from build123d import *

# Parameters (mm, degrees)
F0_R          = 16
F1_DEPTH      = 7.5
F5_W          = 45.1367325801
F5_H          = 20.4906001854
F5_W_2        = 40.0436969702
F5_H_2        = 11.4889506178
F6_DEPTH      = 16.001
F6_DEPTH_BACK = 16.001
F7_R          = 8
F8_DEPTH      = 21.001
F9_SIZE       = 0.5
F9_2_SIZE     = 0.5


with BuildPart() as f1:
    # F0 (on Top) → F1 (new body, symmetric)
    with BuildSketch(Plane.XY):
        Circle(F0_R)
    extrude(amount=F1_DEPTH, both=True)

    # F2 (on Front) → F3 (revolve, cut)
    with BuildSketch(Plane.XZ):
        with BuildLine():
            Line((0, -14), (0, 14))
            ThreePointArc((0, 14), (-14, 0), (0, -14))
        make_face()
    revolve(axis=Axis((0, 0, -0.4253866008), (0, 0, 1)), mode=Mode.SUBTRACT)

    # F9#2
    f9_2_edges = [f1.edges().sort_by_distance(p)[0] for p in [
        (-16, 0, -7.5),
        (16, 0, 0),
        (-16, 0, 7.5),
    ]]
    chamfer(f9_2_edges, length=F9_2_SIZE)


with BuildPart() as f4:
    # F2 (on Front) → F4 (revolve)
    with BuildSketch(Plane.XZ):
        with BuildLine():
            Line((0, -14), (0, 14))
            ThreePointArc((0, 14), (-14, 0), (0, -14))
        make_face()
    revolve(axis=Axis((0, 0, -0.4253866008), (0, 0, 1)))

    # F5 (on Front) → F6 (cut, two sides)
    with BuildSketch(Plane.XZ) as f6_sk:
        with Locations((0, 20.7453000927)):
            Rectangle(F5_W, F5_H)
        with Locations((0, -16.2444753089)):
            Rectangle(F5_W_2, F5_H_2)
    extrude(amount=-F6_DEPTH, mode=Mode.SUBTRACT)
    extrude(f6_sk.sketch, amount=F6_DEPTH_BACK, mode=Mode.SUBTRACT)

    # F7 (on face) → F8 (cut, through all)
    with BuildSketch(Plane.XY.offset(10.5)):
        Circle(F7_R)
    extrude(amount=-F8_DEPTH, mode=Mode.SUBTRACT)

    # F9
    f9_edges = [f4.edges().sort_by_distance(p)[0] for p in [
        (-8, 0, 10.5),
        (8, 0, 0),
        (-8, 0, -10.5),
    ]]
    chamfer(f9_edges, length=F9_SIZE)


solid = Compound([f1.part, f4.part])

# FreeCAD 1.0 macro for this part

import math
import FreeCAD as App
import Part
import Sketcher
Q = App.Units.Quantity


def edges_at(feature, points):
    """Names of the edges that pass closest to the given points."""
    edges = feature.Shape.Edges
    near = lambda p: min(range(len(edges)), key=lambda i: edges[i].distToShape(Part.Vertex(*p))[0])
    return sorted({f"Edge{near(p) + 1}" for p in points})


def add_polygon(sketch, points):
    """Adds a closed chain of lines whose ends are joined by coincident constraints."""
    first, n = sketch.GeometryCount, len(points)
    for a, b in zip(points, points[1:] + points[:1]):
        sketch.addGeometry(Part.LineSegment(App.Vector(*a, 0), App.Vector(*b, 0)), False)
    for i in range(n):
        sketch.addConstraint(Sketcher.Constraint("Coincident", first + i, 2, first + (i + 1) % n, 1))

doc = App.newDocument("Part")
body = doc.addObject("PartDesign::Body", "Body")

# Sketch on XY plane
sketch1 = doc.addObject("Sketcher::SketchObject", "Sketch")
body.addObject(sketch1)
sketch1.AttachmentSupport = (doc.XY_Plane, [""])
sketch1.MapMode = "FlatFace"
sketch1.addGeometry(Part.Circle(App.Vector(0, 0, 0), App.Vector(0, 0, 1), 16), False)
sketch1.addConstraint([
    Sketcher.Constraint("Coincident", 0, 3, -1, 1),
    Sketcher.Constraint("Diameter", 0, Q("32 mm")),
])
pad1 = doc.addObject("PartDesign::Pad", "Pad")
body.addObject(pad1)
pad1.Profile = sketch1
pad1.Length = 15
pad1.Midplane = True

# Sketch on XZ plane
sketch2 = doc.addObject("Sketcher::SketchObject", "Sketch001")
body.addObject(sketch2)
sketch2.AttachmentSupport = (doc.XZ_Plane, [""])
sketch2.MapMode = "FlatFace"
sketch2.addGeometry([
    Part.LineSegment(App.Vector(0, -14, 0), App.Vector(0, 14, 0)),
    Part.ArcOfCircle(Part.Circle(App.Vector(0, 0, 0), App.Vector(0, 0, 1), 14), math.radians(90), math.radians(270)),
], False)
sketch2.addConstraint([
    Sketcher.Constraint("Coincident", 0, 1, 1, 2),
    Sketcher.Constraint("Coincident", 1, 1, 0, 2),
    Sketcher.Constraint("Vertical", 0),
    Sketcher.Constraint("Coincident", 1, 3, -1, 1),
    Sketcher.Constraint("PointOnObject", 0, 1, -2),
    Sketcher.Constraint("Radius", 1, Q("14 mm")),
])
groove = doc.addObject("PartDesign::Groove", "Groove")
body.addObject(groove)
groove.Profile = sketch2
groove.ReferenceAxis = (sketch2, ["V_Axis"])
groove.Angle = 360
doc.recompute()

chamfer = doc.addObject("PartDesign::Chamfer", "Chamfer")
body.addObject(chamfer)
chamfer.Base = (groove, edges_at(groove, [(-16, 0, -7.5), (16, 0, 0), (-16, 0, 7.5)]))
chamfer.Size = 0.5
body2 = doc.addObject("PartDesign::Body", "Body001")

# Sketch on XZ plane
sketch3 = doc.addObject("Sketcher::SketchObject", "Sketch002")
body2.addObject(sketch3)
sketch3.AttachmentSupport = (doc.getObject("XZ_Plane001"), [""])
sketch3.MapMode = "FlatFace"
sketch3.addGeometry([
    Part.LineSegment(App.Vector(0, -14, 0), App.Vector(0, 14, 0)),
    Part.ArcOfCircle(Part.Circle(App.Vector(0, 0, 0), App.Vector(0, 0, 1), 14), math.radians(90), math.radians(270)),
], False)
sketch3.addConstraint([
    Sketcher.Constraint("Coincident", 0, 1, 1, 2),
    Sketcher.Constraint("Coincident", 1, 1, 0, 2),
    Sketcher.Constraint("Vertical", 0),
    Sketcher.Constraint("Coincident", 1, 3, -1, 1),
    Sketcher.Constraint("PointOnObject", 0, 1, -2),
    Sketcher.Constraint("Radius", 1, Q("14 mm")),
])
revolution = doc.addObject("PartDesign::Revolution", "Revolution")
body2.addObject(revolution)
revolution.Profile = sketch3
revolution.ReferenceAxis = (sketch3, ["V_Axis"])
revolution.Angle = 360

# Sketch on XZ plane
sketch4 = doc.addObject("Sketcher::SketchObject", "Sketch003")
body2.addObject(sketch4)
sketch4.AttachmentSupport = (doc.getObject("XZ_Plane001"), [""])
sketch4.MapMode = "FlatFace"
add_polygon(sketch4, [(-23, 31), (-23, 10), (23, 10), (23, 31)])  # lines 0-3
add_polygon(sketch4, [(-20, -10), (-20, -22), (20, -22), (20, -10)])  # lines 4-7
sketch4.addConstraint([
    Sketcher.Constraint("Vertical", 0),
    Sketcher.Constraint("Horizontal", 1),
    Sketcher.Constraint("Vertical", 2),
    Sketcher.Constraint("Horizontal", 3),
    Sketcher.Constraint("Vertical", 4),
    Sketcher.Constraint("Horizontal", 5),
    Sketcher.Constraint("Vertical", 6),
    Sketcher.Constraint("Horizontal", 7),
    Sketcher.Constraint("DistanceY", 6, 2, 1, 2, Q("21 mm")),
    Sketcher.Constraint("DistanceY", -1, 1, 0, 2, Q("10.5 mm")),
    Sketcher.Constraint("DistanceY", 0, 2, 0, 1, Q("20.4906 mm")),
    Sketcher.Constraint("DistanceY", 4, 2, 4, 1, Q("11.488951 mm")),
    Sketcher.Constraint("DistanceX", 1, 1, 1, 2, Q("45.136733 mm")),
    Sketcher.Constraint("DistanceX", 5, 1, 5, 2, Q("40.043697 mm")),
    Sketcher.Constraint("DistanceX", 4, 2, -1, 1, Q("20.021848 mm")),
    Sketcher.Constraint("DistanceX", 0, 2, -1, 1, Q("22.568366 mm")),
])
pocket1 = doc.addObject("PartDesign::Pocket", "Pocket")
body2.addObject(pocket1)
pocket1.Profile = sketch4
pocket1.Type = "ThroughAll"
pocket1.Midplane = True

# Sketch on XY plane
sketch5 = doc.addObject("Sketcher::SketchObject", "Sketch004")
body2.addObject(sketch5)
sketch5.AttachmentSupport = (doc.getObject("XY_Plane001"), [""])
sketch5.MapMode = "FlatFace"
sketch5.AttachmentOffset = App.Placement(App.Vector(0, 0, 10.5), App.Rotation())
sketch5.addGeometry(Part.Circle(App.Vector(0, 0, 0), App.Vector(0, 0, 1), 8), False)
sketch5.addConstraint([
    Sketcher.Constraint("Coincident", 0, 3, -1, 1),
    Sketcher.Constraint("Diameter", 0, Q("16 mm")),
])
pocket2 = doc.addObject("PartDesign::Pocket", "Pocket001")
body2.addObject(pocket2)
pocket2.Profile = sketch5
pocket2.Type = "ThroughAll"
doc.recompute()

chamfer2 = doc.addObject("PartDesign::Chamfer", "Chamfer001")
body2.addObject(chamfer2)
chamfer2.Base = (pocket2, edges_at(pocket2, [(-8, 0, 10.5), (8, 0, 0), (-8, 0, -10.5)]))
chamfer2.Size = 0.5

doc.recompute()
